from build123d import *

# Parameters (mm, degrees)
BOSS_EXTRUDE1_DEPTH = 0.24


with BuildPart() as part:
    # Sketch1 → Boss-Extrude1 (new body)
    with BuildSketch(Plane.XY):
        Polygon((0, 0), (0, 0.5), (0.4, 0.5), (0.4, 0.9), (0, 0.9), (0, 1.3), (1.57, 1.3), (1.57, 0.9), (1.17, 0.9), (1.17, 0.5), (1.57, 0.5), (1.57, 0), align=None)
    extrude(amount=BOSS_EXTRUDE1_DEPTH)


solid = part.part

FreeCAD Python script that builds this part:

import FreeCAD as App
import Part
import Sketcher

V = App.Vector


def add_polygon(sketch, points):
    """Adds a closed chain of lines whose ends are joined by coincident constraints."""
    first, n = sketch.GeometryCount, len(points)
    for a, b in zip(points, points[1:] + points[:1]):
        sketch.addGeometry(Part.LineSegment(App.Vector(*a, 0), App.Vector(*b, 0)), False)
    for i in range(n):
        sketch.addConstraint(Sketcher.Constraint("Coincident", first + i, 2, first + (i + 1) % n, 1))

doc = App.newDocument("Part")
body = doc.addObject("PartDesign::Body", "Body")

sketch1 = body.newObject("Sketcher::SketchObject", "Sketch")
sketch1.AttachmentSupport = (doc.getObject("XY_Plane"), [""])
sketch1.MapMode = "FlatFace"
add_polygon(sketch1, [(0, 0.5), (0, 0), (1.57, 0), (1.57, 0.5), (1.17, 0.5), (1.17, 0.9), (1.57, 0.9), (1.57, 1.3), (0, 1.3), (0, 0.9), (0.4, 0.9), (0.4, 0.5)])
sketch1.addConstraint(Sketcher.Constraint("Vertical", 0))
sketch1.addConstraint(Sketcher.Constraint("Horizontal", 1))
sketch1.addConstraint(Sketcher.Constraint("Vertical", 2))
sketch1.addConstraint(Sketcher.Constraint("Horizontal", 3))
sketch1.addConstraint(Sketcher.Constraint("Vertical", 4))
sketch1.addConstraint(Sketcher.Constraint("Horizontal", 5))
sketch1.addConstraint(Sketcher.Constraint("Vertical", 6))
sketch1.addConstraint(Sketcher.Constraint("Horizontal", 7))
sketch1.addConstraint(Sketcher.Constraint("Vertical", 8))
sketch1.addConstraint(Sketcher.Constraint("Horizontal", 9))
sketch1.addConstraint(Sketcher.Constraint("Vertical", 10))
sketch1.addConstraint(Sketcher.Constraint("Horizontal", 11))
sketch1.addConstraint(Sketcher.Constraint("Coincident", 0, 2, -1, 1))
sketch1.addConstraint(Sketcher.Constraint("PointOnObject", 7, 2, -2))
sketch1.addConstraint(Sketcher.Constraint("Horizontal", 5, 2, 8, 2))
sketch1.addConstraint(Sketcher.Constraint("Horizontal", 3, 2, 10, 2))
sketch1.addConstraint(Sketcher.Constraint("Vertical", 2, 2, 5, 2))
sketch1.addConstraint(Sketcher.Constraint("Equal", 5, 9))
sketch1.addConstraint(Sketcher.Constraint("Equal", 11, 4))
sketch1.addConstraint(Sketcher.Constraint("Equal", 4, 6))
sketch1.addConstraint(Sketcher.Constraint("DistanceX", 3, 2, 3, 1, 0.4))
sketch1.addConstraint(Sketcher.Constraint("DistanceY", 0, 2, 0, 1, 0.5))
sketch1.addConstraint(Sketcher.Constraint("DistanceX", 1, 1, 1, 2, 1.57))
pad1 = body.newObject("PartDesign::Pad", "Pad")
pad1.Profile = sketch1
pad1.Length = 0.24

doc.recompute()
